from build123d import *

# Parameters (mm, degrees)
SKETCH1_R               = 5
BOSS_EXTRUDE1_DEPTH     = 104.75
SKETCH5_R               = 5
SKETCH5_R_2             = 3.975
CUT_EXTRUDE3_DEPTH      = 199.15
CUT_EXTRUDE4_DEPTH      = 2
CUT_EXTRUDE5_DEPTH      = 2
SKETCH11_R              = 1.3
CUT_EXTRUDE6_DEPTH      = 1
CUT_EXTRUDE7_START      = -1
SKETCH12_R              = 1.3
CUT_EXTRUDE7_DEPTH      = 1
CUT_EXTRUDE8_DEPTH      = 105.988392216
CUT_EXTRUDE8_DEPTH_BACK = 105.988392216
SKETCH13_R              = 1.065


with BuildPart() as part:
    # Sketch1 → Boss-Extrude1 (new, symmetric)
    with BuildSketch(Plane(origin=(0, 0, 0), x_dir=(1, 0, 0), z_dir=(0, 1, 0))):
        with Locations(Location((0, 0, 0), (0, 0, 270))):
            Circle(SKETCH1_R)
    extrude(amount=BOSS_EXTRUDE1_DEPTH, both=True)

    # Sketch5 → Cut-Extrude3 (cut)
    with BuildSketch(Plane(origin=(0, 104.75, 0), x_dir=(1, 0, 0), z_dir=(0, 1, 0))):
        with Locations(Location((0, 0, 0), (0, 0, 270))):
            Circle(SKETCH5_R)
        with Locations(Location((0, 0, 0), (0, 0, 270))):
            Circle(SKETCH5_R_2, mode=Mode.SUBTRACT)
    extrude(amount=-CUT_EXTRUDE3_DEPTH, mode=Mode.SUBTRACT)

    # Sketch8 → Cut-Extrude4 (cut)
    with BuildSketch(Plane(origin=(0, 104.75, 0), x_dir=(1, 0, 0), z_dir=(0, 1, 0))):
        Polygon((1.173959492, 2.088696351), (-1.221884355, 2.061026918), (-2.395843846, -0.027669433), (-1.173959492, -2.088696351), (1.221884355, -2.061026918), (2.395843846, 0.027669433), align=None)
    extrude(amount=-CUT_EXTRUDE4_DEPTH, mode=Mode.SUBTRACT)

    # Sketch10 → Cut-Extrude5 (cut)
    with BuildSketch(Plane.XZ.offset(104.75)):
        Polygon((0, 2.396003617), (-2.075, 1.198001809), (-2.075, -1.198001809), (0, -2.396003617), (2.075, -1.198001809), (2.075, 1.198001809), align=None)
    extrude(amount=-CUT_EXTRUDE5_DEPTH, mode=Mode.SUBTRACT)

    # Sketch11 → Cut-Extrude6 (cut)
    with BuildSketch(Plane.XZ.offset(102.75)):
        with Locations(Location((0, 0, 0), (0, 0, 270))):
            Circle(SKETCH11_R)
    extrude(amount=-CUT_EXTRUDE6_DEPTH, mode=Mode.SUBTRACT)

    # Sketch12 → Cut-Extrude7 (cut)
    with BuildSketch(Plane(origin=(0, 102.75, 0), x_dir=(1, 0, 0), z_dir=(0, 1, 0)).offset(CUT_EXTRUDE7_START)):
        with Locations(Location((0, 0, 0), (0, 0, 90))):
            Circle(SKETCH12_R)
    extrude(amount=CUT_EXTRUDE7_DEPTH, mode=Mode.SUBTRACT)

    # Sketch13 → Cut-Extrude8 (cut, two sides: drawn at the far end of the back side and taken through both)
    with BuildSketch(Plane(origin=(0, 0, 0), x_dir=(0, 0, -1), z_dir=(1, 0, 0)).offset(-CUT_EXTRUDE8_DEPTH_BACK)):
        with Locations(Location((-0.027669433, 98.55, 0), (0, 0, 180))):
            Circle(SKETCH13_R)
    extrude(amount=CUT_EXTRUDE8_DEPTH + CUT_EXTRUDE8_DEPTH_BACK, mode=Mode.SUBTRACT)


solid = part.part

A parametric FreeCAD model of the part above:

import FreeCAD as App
import Part
import Sketcher

V = App.Vector
Q = App.Units.Quantity


def add_polygon(sketch, points):
    """Adds a closed chain of lines whose ends are joined by coincident constraints."""
    first, n = sketch.GeometryCount, len(points)
    for a, b in zip(points, points[1:] + points[:1]):
        sketch.addGeometry(Part.LineSegment(App.Vector(*a, 0), App.Vector(*b, 0)), False)
    for i in range(n):
        sketch.addConstraint(Sketcher.Constraint("Coincident", first + i, 2, first + (i + 1) % n, 1))

doc = App.newDocument("Part")
body = doc.addObject("PartDesign::Body", "Body")

# Sketch on XZ plane
sketch1 = body.newObject("Sketcher::SketchObject", "Sketch")
sketch1.AttachmentSupport = (doc.getObject("XZ_Plane"), [""])
sketch1.MapMode = "FlatFace"
sketch1.addGeometry(Part.Circle(V(0, 0, 0), V(0, 0, 1), 5), False)
sketch1.addConstraint([
    Sketcher.Constraint("Coincident", 0, 3, -1, 1),
    Sketcher.Constraint("Diameter", 0, 10.0),
])
pad1 = body.newObject("PartDesign::Pad", "Pad")
pad1.Profile = sketch1
pad1.Length = 209.5
pad1.Midplane = True

# Sketch on XZ plane
sketch2 = body.newObject("Sketcher::SketchObject", "Sketch001")
sketch2.AttachmentSupport = (doc.getObject("XZ_Plane"), [""])
sketch2.MapMode = "FlatFace"
sketch2.AttachmentOffset = App.Placement(V(0, 0, -104.75), App.Rotation())
sketch2.addGeometry([
    Part.Circle(V(0, 0, 0), V(0, 0, 1), 5),
    Part.Circle(V(0, 0, 0), V(0, 0, 1), 4),
], False)
sketch2.addConstraint([
    Sketcher.Constraint("Coincident", 0, 3, -1, 1),
    Sketcher.Constraint("Coincident", 1, 3, -1, 1),
    Sketcher.Constraint("Diameter", 0, 10.0),
    Sketcher.Constraint("Diameter", 1, 7.95),
])
pocket1 = body.newObject("PartDesign::Pocket", "Pocket")
pocket1.Profile = sketch2
pocket1.Length = 199.15
pocket1.Reversed = True

# Sketch on XZ plane
sketch3 = body.newObject("Sketcher::SketchObject", "Sketch002")
sketch3.AttachmentSupport = (doc.getObject("XZ_Plane"), [""])
sketch3.MapMode = "FlatFace"
sketch3.AttachmentOffset = App.Placement(V(0, 0, -104.75), App.Rotation())
add_polygon(sketch3, [(1.2, -2.1), (-1.2, -2.1), (-2.4, 0), (-1.2, 2.1), (1.2, 2.1), (2.4, 0)])  # lines 0-5
sketch3.addConstraint([
    Sketcher.Constraint("Symmetric", 0, 2, 3, 2, -1, 1),
    Sketcher.Constraint("Symmetric", 1, 2, 4, 2, -1, 1),
    Sketcher.Constraint("Symmetric", 2, 2, 5, 2, -1, 1),
    Sketcher.Constraint("Equal", 0, 1),
    Sketcher.Constraint("Equal", 1, 2),
    Sketcher.Constraint("DistanceY", -1, 1, 1, 2, 0.027669),
    Sketcher.Constraint("DistanceX", 2, 2, -1, 1, 1.173959),
    Sketcher.Constraint("DistanceX", 1, 2, 0, 2, 1.173959),
    Sketcher.Constraint("DistanceY", 3, 2, 2, 2, 0.027669),
])
pocket2 = body.newObject("PartDesign::Pocket", "Pocket001")
pocket2.Profile = sketch3
pocket2.Length = 2
pocket2.Reversed = True

# Sketch on XZ plane
sketch4 = body.newObject("Sketcher::SketchObject", "Sketch003")
sketch4.AttachmentSupport = (doc.getObject("XZ_Plane"), [""])
sketch4.MapMode = "FlatFace"
sketch4.AttachmentOffset = App.Placement(V(0, 0, 104.75), App.Rotation())
add_polygon(sketch4, [(0, 2.4), (-2.1, 1.2), (-2.1, -1.2), (0, -2.4), (2.1, -1.2), (2.1, 1.2)])  # lines 0-5
sketch4.addConstraint([
    Sketcher.Constraint("Vertical", 1),
    Sketcher.Constraint("Vertical", 4),
    Sketcher.Constraint("Symmetric", 0, 2, 3, 2, -1, 1),
    Sketcher.Constraint("Symmetric", 2, 2, 5, 2, -1, 1),
    Sketcher.Constraint("PointOnObject", 2, 2, -2),
    Sketcher.Constraint("Parallel", 2, 5),
    Sketcher.Constraint("Horizontal", 1, 2, 3, 2),
    Sketcher.Constraint("Angle", 0, Q("-150 deg")),
    Sketcher.Constraint("DistanceX", 1, 2, 3, 2, 4.15),
    Sketcher.Constraint("DistanceY", -1, 1, 0, 2, 1.198002),
])
pocket3 = body.newObject("PartDesign::Pocket", "Pocket002")
pocket3.Profile = sketch4
pocket3.Length = 2

# Sketch on XZ plane
sketch5 = body.newObject("Sketcher::SketchObject", "Sketch004")
sketch5.AttachmentSupport = (doc.getObject("XZ_Plane"), [""])
sketch5.MapMode = "FlatFace"
sketch5.AttachmentOffset = App.Placement(V(0, 0, 102.75), App.Rotation())
sketch5.addGeometry(Part.Circle(V(0, 0, 0), V(0, 0, 1), 1.3), False)
sketch5.addConstraint([
    Sketcher.Constraint("Coincident", 0, 3, -1, 1),
    Sketcher.Constraint("Diameter", 0, 2.6),
])
pocket4 = body.newObject("PartDesign::Pocket", "Pocket003")
pocket4.Profile = sketch5
pocket4.Length = 1

# Sketch on XZ plane
sketch6 = body.newObject("Sketcher::SketchObject", "Sketch005")
sketch6.AttachmentSupport = (doc.getObject("XZ_Plane"), [""])
sketch6.MapMode = "FlatFace"
sketch6.AttachmentOffset = App.Placement(V(0, 0, -101.75), App.Rotation())
sketch6.addGeometry(Part.Circle(V(0, 0, 0), V(0, 0, 1), 1.3), False)
sketch6.addConstraint([
    Sketcher.Constraint("Coincident", 0, 3, -1, 1),
    Sketcher.Constraint("Diameter", 0, 2.6),
])
pocket5 = body.newObject("PartDesign::Pocket", "Pocket004")
pocket5.Profile = sketch6
pocket5.Length = 1

# Sketch on YZ plane
sketch7 = body.newObject("Sketcher::SketchObject", "Sketch006")
sketch7.AttachmentSupport = (doc.getObject("YZ_Plane"), [""])
sketch7.MapMode = "FlatFace"
sketch7.addGeometry(Part.Circle(V(98.5, 0, 0), V(0, 0, 1), 1.1), False)
sketch7.addConstraint([
    Sketcher.Constraint("Diameter", 0, 2.13),
    Sketcher.Constraint("DistanceX", -1, 1, 0, 3, 98.55),
    Sketcher.Constraint("DistanceY", -1, 1, 0, 3, 0.027669),
])
pocket6 = body.newObject("PartDesign::Pocket", "Pocket005")
pocket6.Profile = sketch7
pocket6.Type = "ThroughAll"
pocket6.Midplane = True

doc.recompute()
